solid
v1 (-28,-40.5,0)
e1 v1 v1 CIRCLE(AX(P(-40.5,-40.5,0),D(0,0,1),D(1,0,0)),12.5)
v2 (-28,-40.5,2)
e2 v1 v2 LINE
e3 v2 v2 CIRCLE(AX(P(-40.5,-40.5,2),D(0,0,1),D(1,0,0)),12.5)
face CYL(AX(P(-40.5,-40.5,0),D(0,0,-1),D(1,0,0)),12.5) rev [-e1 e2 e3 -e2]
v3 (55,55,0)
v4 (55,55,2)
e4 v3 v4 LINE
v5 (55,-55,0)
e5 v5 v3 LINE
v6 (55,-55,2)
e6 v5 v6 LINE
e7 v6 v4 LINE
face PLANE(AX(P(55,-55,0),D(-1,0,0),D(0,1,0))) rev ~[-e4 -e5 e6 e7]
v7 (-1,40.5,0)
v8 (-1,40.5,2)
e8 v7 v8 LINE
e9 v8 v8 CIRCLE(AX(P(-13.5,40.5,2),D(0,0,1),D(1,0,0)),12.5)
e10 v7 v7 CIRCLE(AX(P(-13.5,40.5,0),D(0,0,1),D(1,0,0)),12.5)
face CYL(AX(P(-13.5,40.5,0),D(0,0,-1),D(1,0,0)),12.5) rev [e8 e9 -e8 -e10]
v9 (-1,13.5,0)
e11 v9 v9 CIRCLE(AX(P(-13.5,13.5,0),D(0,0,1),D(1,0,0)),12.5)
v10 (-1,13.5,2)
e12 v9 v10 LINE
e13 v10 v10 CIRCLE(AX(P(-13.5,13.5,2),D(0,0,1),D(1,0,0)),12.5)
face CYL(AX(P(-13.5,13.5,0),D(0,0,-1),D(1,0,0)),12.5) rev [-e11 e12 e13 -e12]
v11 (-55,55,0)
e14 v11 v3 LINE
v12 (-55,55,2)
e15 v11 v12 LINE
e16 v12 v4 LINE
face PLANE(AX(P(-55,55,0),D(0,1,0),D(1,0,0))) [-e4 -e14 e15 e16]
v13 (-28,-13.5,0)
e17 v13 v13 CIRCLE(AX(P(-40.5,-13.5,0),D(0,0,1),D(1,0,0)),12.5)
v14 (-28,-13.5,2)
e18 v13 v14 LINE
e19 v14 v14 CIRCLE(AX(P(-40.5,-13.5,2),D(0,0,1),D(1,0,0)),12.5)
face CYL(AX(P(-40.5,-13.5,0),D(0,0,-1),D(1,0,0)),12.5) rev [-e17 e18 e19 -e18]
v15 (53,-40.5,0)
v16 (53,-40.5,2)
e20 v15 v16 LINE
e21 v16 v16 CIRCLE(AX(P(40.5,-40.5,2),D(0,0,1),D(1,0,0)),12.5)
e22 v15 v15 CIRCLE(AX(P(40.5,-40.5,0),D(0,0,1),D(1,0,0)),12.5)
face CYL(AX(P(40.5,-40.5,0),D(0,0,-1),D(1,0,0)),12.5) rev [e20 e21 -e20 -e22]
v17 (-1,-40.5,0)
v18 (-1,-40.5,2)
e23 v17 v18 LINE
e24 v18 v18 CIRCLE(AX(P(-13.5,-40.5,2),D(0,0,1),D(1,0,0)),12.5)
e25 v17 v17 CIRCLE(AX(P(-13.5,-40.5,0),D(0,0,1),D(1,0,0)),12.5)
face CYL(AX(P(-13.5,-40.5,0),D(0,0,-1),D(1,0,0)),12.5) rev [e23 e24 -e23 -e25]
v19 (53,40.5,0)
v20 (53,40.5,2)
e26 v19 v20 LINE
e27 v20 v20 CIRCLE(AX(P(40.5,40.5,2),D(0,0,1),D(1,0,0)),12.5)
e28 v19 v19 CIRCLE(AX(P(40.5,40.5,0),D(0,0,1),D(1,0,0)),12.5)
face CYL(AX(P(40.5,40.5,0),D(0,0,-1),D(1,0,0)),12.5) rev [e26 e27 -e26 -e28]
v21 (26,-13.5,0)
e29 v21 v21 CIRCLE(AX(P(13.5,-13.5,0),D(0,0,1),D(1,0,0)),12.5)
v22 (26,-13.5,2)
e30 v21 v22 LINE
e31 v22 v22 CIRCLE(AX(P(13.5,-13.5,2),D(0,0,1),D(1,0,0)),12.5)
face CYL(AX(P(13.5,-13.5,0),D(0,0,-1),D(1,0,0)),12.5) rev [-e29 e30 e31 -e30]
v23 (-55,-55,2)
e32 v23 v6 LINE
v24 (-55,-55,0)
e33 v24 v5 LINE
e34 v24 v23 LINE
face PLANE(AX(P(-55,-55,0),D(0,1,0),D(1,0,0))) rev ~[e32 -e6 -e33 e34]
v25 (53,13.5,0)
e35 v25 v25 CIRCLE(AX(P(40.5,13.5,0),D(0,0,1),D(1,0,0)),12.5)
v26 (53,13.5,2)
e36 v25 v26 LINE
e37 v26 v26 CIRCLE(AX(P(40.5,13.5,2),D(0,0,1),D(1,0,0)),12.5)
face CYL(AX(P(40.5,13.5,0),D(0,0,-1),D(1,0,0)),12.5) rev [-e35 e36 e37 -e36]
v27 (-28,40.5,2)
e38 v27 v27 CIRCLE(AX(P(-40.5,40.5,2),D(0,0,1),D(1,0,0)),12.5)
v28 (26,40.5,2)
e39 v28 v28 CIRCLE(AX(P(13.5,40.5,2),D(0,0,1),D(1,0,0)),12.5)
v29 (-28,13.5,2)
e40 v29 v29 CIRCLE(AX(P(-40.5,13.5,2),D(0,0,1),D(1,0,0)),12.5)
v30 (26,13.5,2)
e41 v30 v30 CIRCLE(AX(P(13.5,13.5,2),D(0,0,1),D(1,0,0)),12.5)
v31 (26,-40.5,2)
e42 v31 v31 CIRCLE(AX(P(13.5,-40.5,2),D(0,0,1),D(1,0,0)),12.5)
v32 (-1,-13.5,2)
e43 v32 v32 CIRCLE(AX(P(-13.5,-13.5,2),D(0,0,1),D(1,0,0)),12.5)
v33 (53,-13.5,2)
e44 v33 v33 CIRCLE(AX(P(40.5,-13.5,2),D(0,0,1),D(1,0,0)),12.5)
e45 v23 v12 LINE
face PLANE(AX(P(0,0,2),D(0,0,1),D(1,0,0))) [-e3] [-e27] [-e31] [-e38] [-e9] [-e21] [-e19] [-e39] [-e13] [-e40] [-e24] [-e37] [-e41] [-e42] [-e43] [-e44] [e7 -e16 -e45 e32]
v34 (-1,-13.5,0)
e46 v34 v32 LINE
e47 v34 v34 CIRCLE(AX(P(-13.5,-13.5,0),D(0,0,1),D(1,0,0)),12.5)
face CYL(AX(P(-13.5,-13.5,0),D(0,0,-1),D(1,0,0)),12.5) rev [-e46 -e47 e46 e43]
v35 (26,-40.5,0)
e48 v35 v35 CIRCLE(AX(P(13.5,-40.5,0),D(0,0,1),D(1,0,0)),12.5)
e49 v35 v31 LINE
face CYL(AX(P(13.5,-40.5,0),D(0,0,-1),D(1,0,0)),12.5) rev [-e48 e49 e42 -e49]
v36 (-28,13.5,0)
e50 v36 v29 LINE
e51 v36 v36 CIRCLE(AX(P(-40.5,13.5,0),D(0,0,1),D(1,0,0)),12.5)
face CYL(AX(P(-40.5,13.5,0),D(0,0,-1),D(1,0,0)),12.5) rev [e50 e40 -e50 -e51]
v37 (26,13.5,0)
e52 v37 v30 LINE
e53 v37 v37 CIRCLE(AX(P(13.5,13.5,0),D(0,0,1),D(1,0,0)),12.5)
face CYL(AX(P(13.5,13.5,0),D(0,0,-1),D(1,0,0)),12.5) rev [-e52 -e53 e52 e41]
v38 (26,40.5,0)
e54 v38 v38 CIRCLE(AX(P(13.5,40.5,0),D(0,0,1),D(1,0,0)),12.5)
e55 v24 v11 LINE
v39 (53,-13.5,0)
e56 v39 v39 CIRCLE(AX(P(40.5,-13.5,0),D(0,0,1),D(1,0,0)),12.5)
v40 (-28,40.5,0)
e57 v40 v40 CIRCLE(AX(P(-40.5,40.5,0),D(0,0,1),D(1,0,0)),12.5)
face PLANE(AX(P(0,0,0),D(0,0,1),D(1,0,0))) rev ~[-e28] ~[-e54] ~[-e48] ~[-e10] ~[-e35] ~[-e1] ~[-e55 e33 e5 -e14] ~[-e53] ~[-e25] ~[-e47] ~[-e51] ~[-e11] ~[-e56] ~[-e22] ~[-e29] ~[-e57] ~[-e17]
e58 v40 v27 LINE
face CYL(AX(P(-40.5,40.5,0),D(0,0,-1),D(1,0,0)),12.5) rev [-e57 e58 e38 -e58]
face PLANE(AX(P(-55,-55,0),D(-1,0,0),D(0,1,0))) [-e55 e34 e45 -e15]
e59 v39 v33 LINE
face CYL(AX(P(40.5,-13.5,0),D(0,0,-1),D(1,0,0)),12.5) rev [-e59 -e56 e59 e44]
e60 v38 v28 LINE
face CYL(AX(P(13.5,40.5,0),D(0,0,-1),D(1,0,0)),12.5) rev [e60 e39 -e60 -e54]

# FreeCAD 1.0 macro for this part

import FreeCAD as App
import Part
import Sketcher
Q = App.Units.Quantity


def add_polygon(sketch, points):
    """Adds a closed chain of lines whose ends are joined by coincident constraints."""
    first, n = sketch.GeometryCount, len(points)
    for a, b in zip(points, points[1:] + points[:1]):
        sketch.addGeometry(Part.LineSegment(App.Vector(*a, 0), App.Vector(*b, 0)), False)
    for i in range(n):
        sketch.addConstraint(Sketcher.Constraint("Coincident", first + i, 2, first + (i + 1) % n, 1))

doc = App.newDocument("Part")
body = doc.addObject("PartDesign::Body", "Body")

sketch1 = body.newObject("Sketcher::SketchObject", "Sketch")
sketch1.AttachmentSupport = (doc.getObject("XY_Plane"), [""])
sketch1.MapMode = "FlatFace"
add_polygon(sketch1, [(-55, 55), (-55, -55), (55, -55), (55, 55)])
sketch1.addGeometry(Part.Circle(App.Vector(-40, -40, 0), App.Vector(0, 0, 1), 12), False)
sketch1.addGeometry(Part.Circle(App.Vector(-14, -40, 0), App.Vector(0, 0, 1), 12), False)
sketch1.addGeometry(Part.Circle(App.Vector(-40, -14, 0), App.Vector(0, 0, 1), 12), False)
sketch1.addGeometry(Part.Circle(App.Vector(-14, -14, 0), App.Vector(0, 0, 1), 12), False)
sketch1.addGeometry(Part.Circle(App.Vector(14, -40, 0), App.Vector(0, 0, 1), 12), False)
sketch1.addGeometry(Part.Circle(App.Vector(40, -40, 0), App.Vector(0, 0, 1), 12), False)
sketch1.addGeometry(Part.Circle(App.Vector(14, -14, 0), App.Vector(0, 0, 1), 12), False)
sketch1.addGeometry(Part.Circle(App.Vector(40, -14, 0), App.Vector(0, 0, 1), 12), False)
sketch1.addGeometry(Part.Circle(App.Vector(-40, 14, 0), App.Vector(0, 0, 1), 12), False)
sketch1.addGeometry(Part.Circle(App.Vector(-14, 14, 0), App.Vector(0, 0, 1), 12), False)
sketch1.addGeometry(Part.Circle(App.Vector(-40, 40, 0), App.Vector(0, 0, 1), 12), False)
sketch1.addGeometry(Part.Circle(App.Vector(-14, 40, 0), App.Vector(0, 0, 1), 12), False)
sketch1.addGeometry(Part.Circle(App.Vector(14, 14, 0), App.Vector(0, 0, 1), 12), False)
sketch1.addGeometry(Part.Circle(App.Vector(40, 14, 0), App.Vector(0, 0, 1), 12), False)
sketch1.addGeometry(Part.Circle(App.Vector(14, 40, 0), App.Vector(0, 0, 1), 12), False)
sketch1.addGeometry(Part.Circle(App.Vector(40, 40, 0), App.Vector(0, 0, 1), 12), False)
sketch1.addConstraint([
    Sketcher.Constraint("Vertical", 0),
    Sketcher.Constraint("Horizontal", 1),
    Sketcher.Constraint("Vertical", 2),
    Sketcher.Constraint("Horizontal", 3),
    Sketcher.Constraint("Equal", 4, 5),
    Sketcher.Constraint("Equal", 5, 6),
    Sketcher.Constraint("Equal", 6, 7),
    Sketcher.Constraint("Equal", 7, 8),
    Sketcher.Constraint("Equal", 8, 9),
    Sketcher.Constraint("Equal", 9, 10),
    Sketcher.Constraint("Equal", 10, 11),
    Sketcher.Constraint("Equal", 11, 12),
    Sketcher.Constraint("Equal", 12, 13),
    Sketcher.Constraint("Equal", 13, 14),
    Sketcher.Constraint("Equal", 14, 15),
    Sketcher.Constraint("Equal", 15, 16),
    Sketcher.Constraint("Equal", 16, 17),
    Sketcher.Constraint("Equal", 17, 18),
    Sketcher.Constraint("Equal", 18, 19),
    Sketcher.Constraint("Symmetric", 11, 3, 12, 3, -1, 1),
    Sketcher.Constraint("Symmetric", 10, 3, 13, 3, -1, 1),
    Sketcher.Constraint("Symmetric", 9, 3, 14, 3, -1, 1),
    Sketcher.Constraint("Symmetric", 8, 3, 15, 3, -1, 1),
    Sketcher.Constraint("Symmetric", 7, 3, 16, 3, -1, 1),
    Sketcher.Constraint("Symmetric", 6, 3, 17, 3, -1, 1),
    Sketcher.Constraint("Symmetric", 5, 3, 18, 3, -1, 1),
    Sketcher.Constraint("Symmetric", 4, 3, 19, 3, -1, 1),
    Sketcher.Constraint("Symmetric", 0, 2, 2, 2, -1, 1),
    Sketcher.Constraint("Symmetric", 5, 3, 8, 3, -2),
    Sketcher.Constraint("Symmetric", 4, 3, 9, 3, -2),
    Sketcher.Constraint("Symmetric", 7, 3, 10, 3, -2),
    Sketcher.Constraint("Symmetric", 6, 3, 11, 3, -2),
    Sketcher.Constraint("Horizontal", 4, 3, 5, 3),
    Sketcher.Constraint("Horizontal", 6, 3, 7, 3),
    Sketcher.Constraint("Vertical", 4, 3, 6, 3),
    Sketcher.Constraint("Vertical", 5, 3, 7, 3),
    Sketcher.Constraint("Equal", 3, 0),
    Sketcher.Constraint("Diameter", 4, Q("25 mm")),
    Sketcher.Constraint("DistanceX", 1, 1, 1, 2, Q("110 mm")),
    Sketcher.Constraint("DistanceX", 4, 3, 5, 3, Q("27 mm")),
    Sketcher.Constraint("DistanceY", 4, 3, 6, 3, Q("27 mm")),
    Sketcher.Constraint("DistanceX", 5, 3, 8, 3, Q("27 mm")),
    Sketcher.Constraint("DistanceY", 6, 3, 12, 3, Q("27 mm")),
])
pad1 = body.newObject("PartDesign::Pad", "Pad")
pad1.Profile = sketch1
pad1.Length = 2

doc.recompute()
